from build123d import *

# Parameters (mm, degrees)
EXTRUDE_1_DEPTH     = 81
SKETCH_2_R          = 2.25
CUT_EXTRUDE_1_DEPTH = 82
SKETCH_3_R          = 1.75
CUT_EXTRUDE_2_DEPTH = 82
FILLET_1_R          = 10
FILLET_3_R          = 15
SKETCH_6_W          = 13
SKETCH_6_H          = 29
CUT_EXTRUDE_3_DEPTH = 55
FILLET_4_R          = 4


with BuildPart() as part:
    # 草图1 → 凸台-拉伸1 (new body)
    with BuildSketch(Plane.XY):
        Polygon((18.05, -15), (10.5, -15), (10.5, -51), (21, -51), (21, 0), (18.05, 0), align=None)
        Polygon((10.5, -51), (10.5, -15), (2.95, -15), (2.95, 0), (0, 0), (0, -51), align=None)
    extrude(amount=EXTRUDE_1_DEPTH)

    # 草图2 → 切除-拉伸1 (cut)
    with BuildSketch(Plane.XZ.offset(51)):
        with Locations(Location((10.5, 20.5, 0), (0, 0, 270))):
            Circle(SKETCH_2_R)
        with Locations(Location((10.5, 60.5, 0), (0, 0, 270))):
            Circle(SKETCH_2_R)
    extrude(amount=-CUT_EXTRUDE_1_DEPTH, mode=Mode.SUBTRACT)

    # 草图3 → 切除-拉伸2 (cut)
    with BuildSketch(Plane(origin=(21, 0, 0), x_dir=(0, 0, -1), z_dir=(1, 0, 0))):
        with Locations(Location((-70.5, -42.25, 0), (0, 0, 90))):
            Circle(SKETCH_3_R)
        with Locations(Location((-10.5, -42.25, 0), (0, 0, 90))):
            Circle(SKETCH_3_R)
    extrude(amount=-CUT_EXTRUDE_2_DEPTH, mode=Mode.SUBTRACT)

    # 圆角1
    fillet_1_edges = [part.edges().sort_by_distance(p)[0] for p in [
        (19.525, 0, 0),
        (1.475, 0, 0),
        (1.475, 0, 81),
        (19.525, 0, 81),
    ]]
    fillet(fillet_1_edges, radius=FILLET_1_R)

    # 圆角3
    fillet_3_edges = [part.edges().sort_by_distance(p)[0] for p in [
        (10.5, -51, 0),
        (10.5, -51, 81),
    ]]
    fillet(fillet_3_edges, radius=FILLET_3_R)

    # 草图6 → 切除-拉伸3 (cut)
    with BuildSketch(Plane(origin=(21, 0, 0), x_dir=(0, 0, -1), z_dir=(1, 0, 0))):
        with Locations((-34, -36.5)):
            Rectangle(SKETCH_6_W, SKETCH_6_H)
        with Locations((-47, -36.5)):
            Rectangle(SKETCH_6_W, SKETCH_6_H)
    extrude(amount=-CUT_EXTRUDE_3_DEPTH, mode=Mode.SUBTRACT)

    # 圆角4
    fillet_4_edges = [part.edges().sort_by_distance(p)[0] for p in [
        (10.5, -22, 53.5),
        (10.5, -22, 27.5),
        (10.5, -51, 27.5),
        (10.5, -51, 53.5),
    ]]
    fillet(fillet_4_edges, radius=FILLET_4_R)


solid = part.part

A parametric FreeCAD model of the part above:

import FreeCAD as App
import Part
import Sketcher

V = App.Vector
Q = App.Units.Quantity


def edges_at(feature, points):
    """Names of the edges that pass closest to the given points."""
    edges = feature.Shape.Edges
    near = lambda p: min(range(len(edges)), key=lambda i: edges[i].distToShape(Part.Vertex(*p))[0])
    return sorted({f"Edge{near(p) + 1}" for p in points})


def add_polygon(sketch, points):
    """Adds a closed chain of lines whose ends are joined by coincident constraints."""
    first, n = sketch.GeometryCount, len(points)
    for a, b in zip(points, points[1:] + points[:1]):
        sketch.addGeometry(Part.LineSegment(App.Vector(*a, 0), App.Vector(*b, 0)), False)
    for i in range(n):
        sketch.addConstraint(Sketcher.Constraint("Coincident", first + i, 2, first + (i + 1) % n, 1))

doc = App.newDocument("Part")
body = doc.addObject("PartDesign::Body", "Body")

# Sketch on XY plane
sketch1 = doc.addObject("Sketcher::SketchObject", "Sketch")
body.addObject(sketch1)
sketch1.AttachmentSupport = (doc.XY_Plane, [""])
sketch1.MapMode = "FlatFace"
add_polygon(sketch1, [(18.1, -15), (3, -15), (3, 0), (0, 0), (0, -51), (21, -51), (21, 0), (18.1, 0)])  # lines 0-7
sketch1.addConstraint(Sketcher.Constraint("Horizontal", 0))
sketch1.addConstraint(Sketcher.Constraint("Vertical", 1))
sketch1.addConstraint(Sketcher.Constraint("Horizontal", 2))
sketch1.addConstraint(Sketcher.Constraint("Vertical", 3))
sketch1.addConstraint(Sketcher.Constraint("Horizontal", 4))
sketch1.addConstraint(Sketcher.Constraint("Vertical", 5))
sketch1.addConstraint(Sketcher.Constraint("Horizontal", 6))
sketch1.addConstraint(Sketcher.Constraint("Vertical", 7))
sketch1.addConstraint(Sketcher.Constraint("Coincident", 2, 2, -1, 1))
sketch1.addConstraint(Sketcher.Constraint("PointOnObject", 5, 2, -1))
sketch1.addConstraint(Sketcher.Constraint("Equal", 2, 6))
sketch1.addConstraint(Sketcher.Constraint("DistanceX", 4, 1, 4, 2, Q("21 mm")))
sketch1.addConstraint(Sketcher.Constraint("DistanceY", 1, 1, 1, 2, Q("15 mm")))
sketch1.addConstraint(Sketcher.Constraint("DistanceY", 3, 2, 3, 1, Q("51 mm")))
sketch1.addConstraint(Sketcher.Constraint("DistanceX", 0, 2, 0, 1, Q("15.1 mm")))
pad1 = doc.addObject("PartDesign::Pad", "Pad")
body.addObject(pad1)
pad1.Profile = sketch1
pad1.Length = 81

# Sketch on XZ plane
sketch2 = doc.addObject("Sketcher::SketchObject", "Sketch001")
body.addObject(sketch2)
sketch2.AttachmentSupport = (doc.XZ_Plane, [""])
sketch2.MapMode = "FlatFace"
sketch2.AttachmentOffset = App.Placement(V(0, 0, 51), App.Rotation())
sketch2.addGeometry(Part.Circle(V(10.5, 20.5, 0), V(0, 0, 1), 2.2), False)
sketch2.addGeometry(Part.Circle(V(10.5, 60.5, 0), V(0, 0, 1), 2.2), False)
sketch2.addConstraint(Sketcher.Constraint("Equal", 0, 1))
sketch2.addConstraint(Sketcher.Constraint("Vertical", 0, 3, 1, 3))
sketch2.addConstraint(Sketcher.Constraint("Diameter", 0, Q("4.5 mm")))
sketch2.addConstraint(Sketcher.Constraint("DistanceY", 0, 3, 1, 3, Q("40 mm")))
sketch2.addConstraint(Sketcher.Constraint("DistanceX", -1, 1, 0, 3, Q("10.5 mm")))
sketch2.addConstraint(Sketcher.Constraint("DistanceY", -1, 1, 0, 3, Q("20.5 mm")))
pocket1 = doc.addObject("PartDesign::Pocket", "Pocket")
body.addObject(pocket1)
pocket1.Profile = sketch2
pocket1.Length = 82

# Sketch on YZ plane
sketch3 = doc.addObject("Sketcher::SketchObject", "Sketch002")
body.addObject(sketch3)
sketch3.AttachmentSupport = (doc.YZ_Plane, [""])
sketch3.MapMode = "FlatFace"
sketch3.AttachmentOffset = App.Placement(V(0, 0, 21), App.Rotation())
sketch3.addGeometry(Part.Circle(V(-42.2, 70.5, 0), V(0, 0, 1), 1.8), False)
sketch3.addGeometry(Part.Circle(V(-42.2, 10.5, 0), V(0, 0, 1), 1.8), False)
sketch3.addConstraint(Sketcher.Constraint("Equal", 0, 1))
sketch3.addConstraint(Sketcher.Constraint("Vertical", 0, 3, 1, 3))
sketch3.addConstraint(Sketcher.Constraint("Diameter", 0, Q("3.5 mm")))
sketch3.addConstraint(Sketcher.Constraint("DistanceY", 1, 3, 0, 3, Q("60 mm")))
sketch3.addConstraint(Sketcher.Constraint("DistanceY", -1, 1, 0, 3, Q("70.5 mm")))
sketch3.addConstraint(Sketcher.Constraint("DistanceX", 0, 3, -1, 1, Q("42.25 mm")))
pocket2 = doc.addObject("PartDesign::Pocket", "Pocket001")
body.addObject(pocket2)
pocket2.Profile = sketch3
pocket2.Length = 82
doc.recompute()

fillet = doc.addObject("PartDesign::Fillet", "Fillet")
body.addObject(fillet)
fillet.Base = (pocket2, edges_at(pocket2, [
    (19.525, 0, 0),
    (1.475, 0, 0),
    (1.475, 0, 81),
    (19.525, 0, 81),
]))
fillet.Radius = 10
doc.recompute()

fillet2 = doc.addObject("PartDesign::Fillet", "Fillet001")
body.addObject(fillet2)
fillet2.Base = (fillet, edges_at(fillet, [(10.5, -51, 0), (10.5, -51, 81)]))
fillet2.Radius = 15

# Sketch on YZ plane
sketch4 = doc.addObject("Sketcher::SketchObject", "Sketch003")
body.addObject(sketch4)
sketch4.AttachmentSupport = (doc.YZ_Plane, [""])
sketch4.MapMode = "FlatFace"
sketch4.AttachmentOffset = App.Placement(V(0, 0, 21), App.Rotation())
add_polygon(sketch4, [(-51, 28), (-22, 28), (-22, 54), (-51, 54)])  # lines 0-3
sketch4.addConstraint(Sketcher.Constraint("Horizontal", 0))
sketch4.addConstraint(Sketcher.Constraint("Vertical", 1))
sketch4.addConstraint(Sketcher.Constraint("Horizontal", 2))
sketch4.addConstraint(Sketcher.Constraint("Vertical", 3))
sketch4.addConstraint(Sketcher.Constraint("DistanceX", 0, 1, 0, 2, Q("29 mm")))
sketch4.addConstraint(Sketcher.Constraint("DistanceY", 1, 1, 1, 2, Q("26 mm")))
sketch4.addConstraint(Sketcher.Constraint("DistanceX", 0, 2, -1, 1, Q("22 mm")))
sketch4.addConstraint(Sketcher.Constraint("DistanceY", -1, 1, 0, 2, Q("27.5 mm")))
pocket3 = doc.addObject("PartDesign::Pocket", "Pocket002")
body.addObject(pocket3)
pocket3.Profile = sketch4
pocket3.Length = 55
doc.recompute()

fillet3 = doc.addObject("PartDesign::Fillet", "Fillet002")
body.addObject(fillet3)
fillet3.Base = (pocket3, edges_at(pocket3, [
    (10.5, -22, 53.5),
    (10.5, -22, 27.5),
    (10.5, -51, 27.5),
    (10.5, -51, 53.5),
]))
fillet3.Radius = 4

doc.recompute()
